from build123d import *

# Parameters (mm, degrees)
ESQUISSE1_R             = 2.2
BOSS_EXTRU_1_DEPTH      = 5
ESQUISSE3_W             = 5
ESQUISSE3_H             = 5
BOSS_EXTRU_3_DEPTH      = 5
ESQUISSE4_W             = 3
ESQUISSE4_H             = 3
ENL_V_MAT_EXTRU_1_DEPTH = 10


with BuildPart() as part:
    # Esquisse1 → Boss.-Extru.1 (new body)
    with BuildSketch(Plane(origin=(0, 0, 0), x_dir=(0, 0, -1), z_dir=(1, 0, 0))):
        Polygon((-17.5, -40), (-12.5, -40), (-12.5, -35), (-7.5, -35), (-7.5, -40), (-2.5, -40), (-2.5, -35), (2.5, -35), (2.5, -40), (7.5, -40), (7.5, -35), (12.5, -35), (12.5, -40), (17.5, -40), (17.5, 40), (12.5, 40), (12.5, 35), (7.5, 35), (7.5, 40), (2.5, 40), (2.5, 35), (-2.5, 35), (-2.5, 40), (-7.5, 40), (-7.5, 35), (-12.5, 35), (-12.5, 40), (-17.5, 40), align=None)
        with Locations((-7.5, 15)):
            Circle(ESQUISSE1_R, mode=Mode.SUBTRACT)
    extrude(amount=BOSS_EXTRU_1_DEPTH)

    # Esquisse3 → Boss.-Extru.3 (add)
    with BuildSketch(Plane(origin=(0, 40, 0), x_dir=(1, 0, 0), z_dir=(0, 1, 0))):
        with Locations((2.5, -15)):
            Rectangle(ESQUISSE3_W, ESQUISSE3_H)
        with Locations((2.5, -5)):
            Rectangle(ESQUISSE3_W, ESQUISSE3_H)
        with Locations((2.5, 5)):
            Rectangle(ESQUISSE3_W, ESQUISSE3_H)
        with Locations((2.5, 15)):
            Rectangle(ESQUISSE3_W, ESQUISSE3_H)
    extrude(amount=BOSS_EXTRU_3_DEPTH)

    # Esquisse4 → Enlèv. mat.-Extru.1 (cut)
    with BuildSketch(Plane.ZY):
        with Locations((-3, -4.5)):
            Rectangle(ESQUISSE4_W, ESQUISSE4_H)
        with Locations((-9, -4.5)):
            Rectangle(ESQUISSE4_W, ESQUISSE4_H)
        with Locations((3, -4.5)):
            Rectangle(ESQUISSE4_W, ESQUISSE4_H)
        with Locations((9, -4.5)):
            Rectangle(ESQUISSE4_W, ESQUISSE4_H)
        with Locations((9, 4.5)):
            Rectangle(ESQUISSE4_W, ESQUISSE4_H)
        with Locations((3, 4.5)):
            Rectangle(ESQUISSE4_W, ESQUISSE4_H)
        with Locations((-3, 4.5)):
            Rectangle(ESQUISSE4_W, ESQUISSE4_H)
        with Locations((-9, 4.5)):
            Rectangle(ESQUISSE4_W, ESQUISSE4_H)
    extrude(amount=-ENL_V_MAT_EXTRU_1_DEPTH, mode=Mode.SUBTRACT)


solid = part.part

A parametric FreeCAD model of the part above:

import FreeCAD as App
import Part
import Sketcher

doc = App.newDocument("Part")
params = doc.addObject("Spreadsheet::Sheet", "Params")
for row, (alias, value) in enumerate([
    ("sketch1_diameter", "4.4 mm"),
    ("sketch1_width", "5 mm"),
    ("sketch1_width2", "80 mm"),
    ("pad1_length", "5 mm"),
    ("sketch2_width", "5 mm"),
    ("pad2_length", "5 mm"),
    ("sketch3_width", "3 mm"),
    ("pocket1_length", "10 mm"),
], start=1):
    params.set(f"A{row}", alias)
    params.set(f"B{row}", "=" + value)
    params.setAlias(f"B{row}", alias)

body = doc.addObject("PartDesign::Body", "Body")

# Sketch on YZ plane
sketch1 = doc.addObject("Sketcher::SketchObject", "Sketch")
body.addObject(sketch1)
sketch1.AttachmentSupport = (doc.YZ_Plane, [""])
sketch1.MapMode = "FlatFace"
sketch1.addGeometry([
    Part.LineSegment(App.Vector(-40, 17.5, 0), App.Vector(-40, 12.5, 0)),  # 0
    Part.LineSegment(App.Vector(-40, 12.5, 0), App.Vector(-35, 12.5, 0)),  # 1
    Part.LineSegment(App.Vector(-35, 12.5, 0), App.Vector(-35, 7.5, 0)),  # 2
    Part.LineSegment(App.Vector(-35, 7.5, 0), App.Vector(-40, 7.5, 0)),  # 3
    Part.LineSegment(App.Vector(-40, 7.5, 0), App.Vector(-40, 2.5, 0)),  # 4
    Part.LineSegment(App.Vector(-40, 2.5, 0), App.Vector(-35, 2.5, 0)),  # 5
    Part.LineSegment(App.Vector(-35, 2.5, 0), App.Vector(-35, -2.5, 0)),  # 6
    Part.LineSegment(App.Vector(-35, -2.5, 0), App.Vector(-40, -2.5, 0)),  # 7
    Part.LineSegment(App.Vector(-40, -2.5, 0), App.Vector(-40, -7.5, 0)),  # 8
    Part.LineSegment(App.Vector(-40, -7.5, 0), App.Vector(-35, -7.5, 0)),  # 9
    Part.LineSegment(App.Vector(-35, -7.5, 0), App.Vector(-35, -12.5, 0)),  # 10
    Part.LineSegment(App.Vector(-35, -12.5, 0), App.Vector(-40, -12.5, 0)),  # 11
    Part.LineSegment(App.Vector(-40, -12.5, 0), App.Vector(-40, -17.5, 0)),  # 12
    Part.LineSegment(App.Vector(-40, -17.5, 0), App.Vector(40, -17.5, 0)),  # 13
    Part.LineSegment(App.Vector(40, -17.5, 0), App.Vector(40, -12.5, 0)),  # 14
    Part.LineSegment(App.Vector(40, -12.5, 0), App.Vector(35, -12.5, 0)),  # 15
    Part.LineSegment(App.Vector(35, -12.5, 0), App.Vector(35, -7.5, 0)),  # 16
    Part.LineSegment(App.Vector(35, -7.5, 0), App.Vector(40, -7.5, 0)),  # 17
    Part.LineSegment(App.Vector(40, -7.5, 0), App.Vector(40, -2.5, 0)),  # 18
    Part.LineSegment(App.Vector(40, -2.5, 0), App.Vector(35, -2.5, 0)),  # 19
    Part.LineSegment(App.Vector(35, -2.5, 0), App.Vector(35, 2.5, 0)),  # 20
    Part.LineSegment(App.Vector(35, 2.5, 0), App.Vector(40, 2.5, 0)),  # 21
    Part.LineSegment(App.Vector(40, 2.5, 0), App.Vector(40, 7.5, 0)),  # 22
    Part.LineSegment(App.Vector(40, 7.5, 0), App.Vector(35, 7.5, 0)),  # 23
    Part.LineSegment(App.Vector(35, 7.5, 0), App.Vector(35, 12.5, 0)),  # 24
    Part.LineSegment(App.Vector(35, 12.5, 0), App.Vector(40, 12.5, 0)),  # 25
    Part.LineSegment(App.Vector(40, 12.5, 0), App.Vector(40, 17.5, 0)),  # 26
    Part.LineSegment(App.Vector(40, 17.5, 0), App.Vector(-40, 17.5, 0)),  # 27
    Part.Circle(App.Vector(15, 7.5, 0), App.Vector(0, 0, 1), 2.2),  # 28
], False)
sketch1.addConstraint([
    Sketcher.Constraint("Coincident", 0, 2, 1, 1),
    Sketcher.Constraint("Coincident", 1, 2, 2, 1),
    Sketcher.Constraint("Coincident", 2, 2, 3, 1),
    Sketcher.Constraint("Coincident", 3, 2, 4, 1),
    Sketcher.Constraint("Coincident", 4, 2, 5, 1),
    Sketcher.Constraint("Coincident", 5, 2, 6, 1),
    Sketcher.Constraint("Coincident", 6, 2, 7, 1),
    Sketcher.Constraint("Coincident", 7, 2, 8, 1),
    Sketcher.Constraint("Coincident", 8, 2, 9, 1),
    Sketcher.Constraint("Coincident", 9, 2, 10, 1),
    Sketcher.Constraint("Coincident", 10, 2, 11, 1),
    Sketcher.Constraint("Coincident", 11, 2, 12, 1),
    Sketcher.Constraint("Coincident", 12, 2, 13, 1),
    Sketcher.Constraint("Coincident", 13, 2, 14, 1),
    Sketcher.Constraint("Coincident", 14, 2, 15, 1),
    Sketcher.Constraint("Coincident", 15, 2, 16, 1),
    Sketcher.Constraint("Coincident", 16, 2, 17, 1),
    Sketcher.Constraint("Coincident", 17, 2, 18, 1),
    Sketcher.Constraint("Coincident", 18, 2, 19, 1),
    Sketcher.Constraint("Coincident", 19, 2, 20, 1),
    Sketcher.Constraint("Coincident", 20, 2, 21, 1),
    Sketcher.Constraint("Coincident", 21, 2, 22, 1),
    Sketcher.Constraint("Coincident", 22, 2, 23, 1),
    Sketcher.Constraint("Coincident", 23, 2, 24, 1),
    Sketcher.Constraint("Coincident", 24, 2, 25, 1),
    Sketcher.Constraint("Coincident", 25, 2, 26, 1),
    Sketcher.Constraint("Coincident", 26, 2, 27, 1),
    Sketcher.Constraint("Coincident", 27, 2, 0, 1),
    Sketcher.Constraint("Vertical", 0),
    Sketcher.Constraint("Horizontal", 1),
    Sketcher.Constraint("Vertical", 2),
    Sketcher.Constraint("Horizontal", 3),
    Sketcher.Constraint("Vertical", 4),
    Sketcher.Constraint("Horizontal", 5),
    Sketcher.Constraint("Vertical", 6),
    Sketcher.Constraint("Horizontal", 7),
    Sketcher.Constraint("Vertical", 8),
    Sketcher.Constraint("Horizontal", 9),
    Sketcher.Constraint("Vertical", 10),
    Sketcher.Constraint("Horizontal", 11),
    Sketcher.Constraint("Vertical", 12),
    Sketcher.Constraint("Horizontal", 13),
    Sketcher.Constraint("Vertical", 14),
    Sketcher.Constraint("Horizontal", 15),
    Sketcher.Constraint("Vertical", 16),
    Sketcher.Constraint("Horizontal", 17),
    Sketcher.Constraint("Vertical", 18),
    Sketcher.Constraint("Horizontal", 19),
    Sketcher.Constraint("Vertical", 20),
    Sketcher.Constraint("Horizontal", 21),
    Sketcher.Constraint("Vertical", 22),
    Sketcher.Constraint("Horizontal", 23),
    Sketcher.Constraint("Vertical", 24),
    Sketcher.Constraint("Horizontal", 25),
    Sketcher.Constraint("Vertical", 26),
    Sketcher.Constraint("Horizontal", 27),
    Sketcher.Constraint("Symmetric", 0, 2, 14, 2, -1, 1),
    Sketcher.Constraint("Symmetric", 2, 2, 16, 2, -1, 1),
    Sketcher.Constraint("Symmetric", 4, 2, 18, 2, -1, 1),
    Sketcher.Constraint("Symmetric", 6, 2, 20, 2, -1, 1),
    Sketcher.Constraint("Symmetric", 8, 2, 22, 2, -1, 1),
    Sketcher.Constraint("Symmetric", 10, 2, 24, 2, -1, 1),
    Sketcher.Constraint("Symmetric", 12, 2, 26, 2, -1, 1),
    Sketcher.Constraint("Symmetric", 11, 2, 14, 2, -2),
    Sketcher.Constraint("Symmetric", 9, 2, 16, 2, -2),
    Sketcher.Constraint("Symmetric", 7, 2, 18, 2, -2),
    Sketcher.Constraint("Horizontal", 28, 3, 2, 2),
    Sketcher.Constraint("Vertical", 0, 2, 3, 2),
    Sketcher.Constraint("Vertical", 2, 2, 5, 2),
    Sketcher.Constraint("Equal", 25, 0),
    Sketcher.Constraint("Equal", 0, 2),
    Sketcher.Constraint("Equal", 2, 4),
    Sketcher.Constraint("Equal", 4, 6),
    Sketcher.Constraint("Diameter", 28, 4.4),
    Sketcher.Constraint("DistanceX", 1, 1, 1, 2, 5.0),
    Sketcher.Constraint("DistanceX", 13, 1, 13, 2, 80.0),
    Sketcher.Constraint("DistanceX", -1, 1, 28, 3, 15.0),
])
sketch1.setExpression("Constraints[73]", "Params.sketch1_diameter")
sketch1.setExpression("Constraints[74]", "Params.sketch1_width")
sketch1.setExpression("Constraints[75]", "Params.sketch1_width2")
pad1 = doc.addObject("PartDesign::Pad", "Pad")
body.addObject(pad1)
pad1.Profile = sketch1
pad1.setExpression("Length", "Params.pad1_length")

# Sketch on XZ plane
sketch2 = doc.addObject("Sketcher::SketchObject", "Sketch001")
body.addObject(sketch2)
sketch2.AttachmentSupport = (doc.XZ_Plane, [""])
sketch2.MapMode = "FlatFace"
sketch2.AttachmentOffset = App.Placement(App.Vector(0, 0, -40), App.Rotation())
sketch2.addGeometry([
    Part.LineSegment(App.Vector(0, 12, 0), App.Vector(0, 18, 0)),  # 0
    Part.LineSegment(App.Vector(0, 18, 0), App.Vector(5, 18, 0)),  # 1
    Part.LineSegment(App.Vector(5, 18, 0), App.Vector(5, 12, 0)),  # 2
    Part.LineSegment(App.Vector(5, 12, 0), App.Vector(0, 12, 0)),  # 3
    Part.LineSegment(App.Vector(0, 2, 0), App.Vector(0, 8, 0)),  # 4
    Part.LineSegment(App.Vector(0, 8, 0), App.Vector(5, 8, 0)),  # 5
    Part.LineSegment(App.Vector(5, 8, 0), App.Vector(5, 2, 0)),  # 6
    Part.LineSegment(App.Vector(5, 2, 0), App.Vector(0, 2, 0)),  # 7
    Part.LineSegment(App.Vector(0, -8, 0), App.Vector(0, -2, 0)),  # 8
    Part.LineSegment(App.Vector(0, -2, 0), App.Vector(5, -2, 0)),  # 9
    Part.LineSegment(App.Vector(5, -2, 0), App.Vector(5, -8, 0)),  # 10
    Part.LineSegment(App.Vector(5, -8, 0), App.Vector(0, -8, 0)),  # 11
    Part.LineSegment(App.Vector(0, -18, 0), App.Vector(0, -12, 0)),  # 12
    Part.LineSegment(App.Vector(0, -12, 0), App.Vector(5, -12, 0)),  # 13
    Part.LineSegment(App.Vector(5, -12, 0), App.Vector(5, -18, 0)),  # 14
    Part.LineSegment(App.Vector(5, -18, 0), App.Vector(0, -18, 0)),  # 15
], False)
sketch2.addConstraint([
    Sketcher.Constraint("Coincident", 0, 2, 1, 1),
    Sketcher.Constraint("Coincident", 1, 2, 2, 1),
    Sketcher.Constraint("Coincident", 2, 2, 3, 1),
    Sketcher.Constraint("Coincident", 3, 2, 0, 1),
    Sketcher.Constraint("Coincident", 4, 2, 5, 1),
    Sketcher.Constraint("Coincident", 5, 2, 6, 1),
    Sketcher.Constraint("Coincident", 6, 2, 7, 1),
    Sketcher.Constraint("Coincident", 7, 2, 4, 1),
    Sketcher.Constraint("Coincident", 8, 2, 9, 1),
    Sketcher.Constraint("Coincident", 9, 2, 10, 1),
    Sketcher.Constraint("Coincident", 10, 2, 11, 1),
    Sketcher.Constraint("Coincident", 11, 2, 8, 1),
    Sketcher.Constraint("Coincident", 12, 2, 13, 1),
    Sketcher.Constraint("Coincident", 13, 2, 14, 1),
    Sketcher.Constraint("Coincident", 14, 2, 15, 1),
    Sketcher.Constraint("Coincident", 15, 2, 12, 1),
    Sketcher.Constraint("Vertical", 0),
    Sketcher.Constraint("Horizontal", 1),
    Sketcher.Constraint("Vertical", 2),
    Sketcher.Constraint("Horizontal", 3),
    Sketcher.Constraint("Vertical", 4),
    Sketcher.Constraint("Horizontal", 5),
    Sketcher.Constraint("Vertical", 6),
    Sketcher.Constraint("Horizontal", 7),
    Sketcher.Constraint("Vertical", 8),
    Sketcher.Constraint("Horizontal", 9),
    Sketcher.Constraint("Vertical", 10),
    Sketcher.Constraint("Horizontal", 11),
    Sketcher.Constraint("Vertical", 12),
    Sketcher.Constraint("Horizontal", 13),
    Sketcher.Constraint("Vertical", 14),
    Sketcher.Constraint("Horizontal", 15),
    Sketcher.Constraint("Symmetric", 7, 2, 8, 2, -1, 1),
    Sketcher.Constraint("Symmetric", 3, 2, 12, 2, -1, 1),
    Sketcher.Constraint("Symmetric", 5, 2, 10, 2, -1),
    Sketcher.Constraint("Symmetric", 1, 2, 14, 2, -1),
    Sketcher.Constraint("PointOnObject", 0, 2, -2),
    Sketcher.Constraint("PointOnObject", 4, 2, -2),
    Sketcher.Constraint("Vertical", 2, 2, 5, 2),
    Sketcher.Constraint("Equal", 15, 0),
    Sketcher.Constraint("Equal", 2, 4),
    Sketcher.Constraint("DistanceX", 1, 1, 1, 2, 5.0),
    Sketcher.Constraint("DistanceY", 4, 2, 3, 2, 5.0),
    Sketcher.Constraint("DistanceY", 8, 2, 7, 2, 5.0),
])
sketch2.setExpression("Constraints[41]", "Params.sketch2_width")
pad2 = doc.addObject("PartDesign::Pad", "Pad001")
body.addObject(pad2)
pad2.Profile = sketch2
pad2.setExpression("Length", "Params.pad2_length")
pad2.Reversed = True

# Sketch on YZ plane
sketch3 = doc.addObject("Sketcher::SketchObject", "Sketch002")
body.addObject(sketch3)
sketch3.AttachmentSupport = (doc.YZ_Plane, [""])
sketch3.MapMode = "FlatFace"
sketch3.addGeometry([
    Part.LineSegment(App.Vector(-3, -4.5, 0), App.Vector(-6, -4.5, 0)),  # 0
    Part.LineSegment(App.Vector(-6, -4.5, 0), App.Vector(-6, -1.5, 0)),  # 1
    Part.LineSegment(App.Vector(-6, -1.5, 0), App.Vector(-3, -1.5, 0)),  # 2
    Part.LineSegment(App.Vector(-3, -1.5, 0), App.Vector(-3, -4.5, 0)),  # 3
    Part.LineSegment(App.Vector(-3, -10.5, 0), App.Vector(-6, -10.5, 0)),  # 4
    Part.LineSegment(App.Vector(-6, -10.5, 0), App.Vector(-6, -7.5, 0)),  # 5
    Part.LineSegment(App.Vector(-6, -7.5, 0), App.Vector(-3, -7.5, 0)),  # 6
    Part.LineSegment(App.Vector(-3, -7.5, 0), App.Vector(-3, -10.5, 0)),  # 7
    Part.LineSegment(App.Vector(-3, 1.5, 0), App.Vector(-6, 1.5, 0)),  # 8
    Part.LineSegment(App.Vector(-6, 1.5, 0), App.Vector(-6, 4.5, 0)),  # 9
    Part.LineSegment(App.Vector(-6, 4.5, 0), App.Vector(-3, 4.5, 0)),  # 10
    Part.LineSegment(App.Vector(-3, 4.5, 0), App.Vector(-3, 1.5, 0)),  # 11
    Part.LineSegment(App.Vector(-3, 7.5, 0), App.Vector(-6, 7.5, 0)),  # 12
    Part.LineSegment(App.Vector(-6, 7.5, 0), App.Vector(-6, 10.5, 0)),  # 13
    Part.LineSegment(App.Vector(-6, 10.5, 0), App.Vector(-3, 10.5, 0)),  # 14
    Part.LineSegment(App.Vector(-3, 10.5, 0), App.Vector(-3, 7.5, 0)),  # 15
    Part.LineSegment(App.Vector(6, 7.5, 0), App.Vector(3, 7.5, 0)),  # 16
    Part.LineSegment(App.Vector(3, 7.5, 0), App.Vector(3, 10.5, 0)),  # 17
    Part.LineSegment(App.Vector(3, 10.5, 0), App.Vector(6, 10.5, 0)),  # 18
    Part.LineSegment(App.Vector(6, 10.5, 0), App.Vector(6, 7.5, 0)),  # 19
    Part.LineSegment(App.Vector(6, 1.5, 0), App.Vector(3, 1.5, 0)),  # 20
    Part.LineSegment(App.Vector(3, 1.5, 0), App.Vector(3, 4.5, 0)),  # 21
    Part.LineSegment(App.Vector(3, 4.5, 0), App.Vector(6, 4.5, 0)),  # 22
    Part.LineSegment(App.Vector(6, 4.5, 0), App.Vector(6, 1.5, 0)),  # 23
    Part.LineSegment(App.Vector(6, -4.5, 0), App.Vector(3, -4.5, 0)),  # 24
    Part.LineSegment(App.Vector(3, -4.5, 0), App.Vector(3, -1.5, 0)),  # 25
    Part.LineSegment(App.Vector(3, -1.5, 0), App.Vector(6, -1.5, 0)),  # 26
    Part.LineSegment(App.Vector(6, -1.5, 0), App.Vector(6, -4.5, 0)),  # 27
    Part.LineSegment(App.Vector(6, -10.5, 0), App.Vector(3, -10.5, 0)),  # 28
    Part.LineSegment(App.Vector(3, -10.5, 0), App.Vector(3, -7.5, 0)),  # 29
    Part.LineSegment(App.Vector(3, -7.5, 0), App.Vector(6, -7.5, 0)),  # 30
    Part.LineSegment(App.Vector(6, -7.5, 0), App.Vector(6, -10.5, 0)),  # 31
], False)
sketch3.addConstraint([
    Sketcher.Constraint("Coincident", 0, 2, 1, 1),
    Sketcher.Constraint("Coincident", 1, 2, 2, 1),
    Sketcher.Constraint("Coincident", 2, 2, 3, 1),
    Sketcher.Constraint("Coincident", 3, 2, 0, 1),
    Sketcher.Constraint("Coincident", 4, 2, 5, 1),
    Sketcher.Constraint("Coincident", 5, 2, 6, 1),
    Sketcher.Constraint("Coincident", 6, 2, 7, 1),
    Sketcher.Constraint("Coincident", 7, 2, 4, 1),
    Sketcher.Constraint("Coincident", 8, 2, 9, 1),
    Sketcher.Constraint("Coincident", 9, 2, 10, 1),
    Sketcher.Constraint("Coincident", 10, 2, 11, 1),
    Sketcher.Constraint("Coincident", 11, 2, 8, 1),
    Sketcher.Constraint("Coincident", 12, 2, 13, 1),
    Sketcher.Constraint("Coincident", 13, 2, 14, 1),
    Sketcher.Constraint("Coincident", 14, 2, 15, 1),
    Sketcher.Constraint("Coincident", 15, 2, 12, 1),
    Sketcher.Constraint("Coincident", 16, 2, 17, 1),
    Sketcher.Constraint("Coincident", 17, 2, 18, 1),
    Sketcher.Constraint("Coincident", 18, 2, 19, 1),
    Sketcher.Constraint("Coincident", 19, 2, 16, 1),
    Sketcher.Constraint("Coincident", 20, 2, 21, 1),
    Sketcher.Constraint("Coincident", 21, 2, 22, 1),
    Sketcher.Constraint("Coincident", 22, 2, 23, 1),
    Sketcher.Constraint("Coincident", 23, 2, 20, 1),
    Sketcher.Constraint("Coincident", 24, 2, 25, 1),
    Sketcher.Constraint("Coincident", 25, 2, 26, 1),
    Sketcher.Constraint("Coincident", 26, 2, 27, 1),
    Sketcher.Constraint("Coincident", 27, 2, 24, 1),
    Sketcher.Constraint("Coincident", 28, 2, 29, 1),
    Sketcher.Constraint("Coincident", 29, 2, 30, 1),
    Sketcher.Constraint("Coincident", 30, 2, 31, 1),
    Sketcher.Constraint("Coincident", 31, 2, 28, 1),
    Sketcher.Constraint("Horizontal", 0),
    Sketcher.Constraint("Vertical", 1),
    Sketcher.Constraint("Horizontal", 2),
    Sketcher.Constraint("Vertical", 3),
    Sketcher.Constraint("Horizontal", 4),
    Sketcher.Constraint("Vertical", 5),
    Sketcher.Constraint("Horizontal", 6),
    Sketcher.Constraint("Vertical", 7),
    Sketcher.Constraint("Horizontal", 8),
    Sketcher.Constraint("Vertical", 9),
    Sketcher.Constraint("Horizontal", 10),
    Sketcher.Constraint("Vertical", 11),
    Sketcher.Constraint("Horizontal", 12),
    Sketcher.Constraint("Vertical", 13),
    Sketcher.Constraint("Horizontal", 14),
    Sketcher.Constraint("Vertical", 15),
    Sketcher.Constraint("Horizontal", 16),
    Sketcher.Constraint("Vertical", 17),
    Sketcher.Constraint("Horizontal", 18),
    Sketcher.Constraint("Vertical", 19),
    Sketcher.Constraint("Horizontal", 20),
    Sketcher.Constraint("Vertical", 21),
    Sketcher.Constraint("Horizontal", 22),
    Sketcher.Constraint("Vertical", 23),
    Sketcher.Constraint("Horizontal", 24),
    Sketcher.Constraint("Vertical", 25),
    Sketcher.Constraint("Horizontal", 26),
    Sketcher.Constraint("Vertical", 27),
    Sketcher.Constraint("Horizontal", 28),
    Sketcher.Constraint("Vertical", 29),
    Sketcher.Constraint("Horizontal", 30),
    Sketcher.Constraint("Vertical", 31),
    Sketcher.Constraint("Symmetric", 6, 2, 16, 2, -1, 1),
    Sketcher.Constraint("Symmetric", 4, 2, 18, 2, -1, 1),
    Sketcher.Constraint("Symmetric", 2, 2, 20, 2, -1, 1),
    Sketcher.Constraint("Symmetric", 0, 2, 22, 2, -1, 1),
    Sketcher.Constraint("Symmetric", 10, 2, 24, 2, -1, 1),
    Sketcher.Constraint("Symmetric", 8, 2, 26, 2, -1, 1),
    Sketcher.Constraint("Symmetric", 14, 2, 28, 2, -1, 1),
    Sketcher.Constraint("Symmetric", 12, 2, 30, 2, -1, 1),
    Sketcher.Constraint("Symmetric", 15, 2, 16, 2, -2),
    Sketcher.Constraint("Symmetric", 13, 2, 18, 2, -2),
    Sketcher.Constraint("Symmetric", 11, 2, 20, 2, -2),
    Sketcher.Constraint("Symmetric", 9, 2, 22, 2, -2),
    Sketcher.Constraint("Vertical", 1, 2, 4, 2),
    Sketcher.Constraint("Vertical", 3, 2, 6, 2),
    Sketcher.Constraint("Equal", 30, 1),
    Sketcher.Constraint("Equal", 3, 5),
    Sketcher.Constraint("DistanceX", 0, 2, 0, 1, 3.0),
    Sketcher.Constraint("DistanceX", 0, 2, -1, 1, 6.0),
    Sketcher.Constraint("DistanceY", 4, 2, 0, 2, 6.0),
    Sketcher.Constraint("DistanceY", 1, 2, 8, 2, 3.0),
])
sketch3.setExpression("Constraints[80]", "Params.sketch3_width")
pocket1 = doc.addObject("PartDesign::Pocket", "Pocket")
body.addObject(pocket1)
pocket1.Profile = sketch3
pocket1.setExpression("Length", "Params.pocket1_length")
pocket1.Reversed = True

doc.recompute()
